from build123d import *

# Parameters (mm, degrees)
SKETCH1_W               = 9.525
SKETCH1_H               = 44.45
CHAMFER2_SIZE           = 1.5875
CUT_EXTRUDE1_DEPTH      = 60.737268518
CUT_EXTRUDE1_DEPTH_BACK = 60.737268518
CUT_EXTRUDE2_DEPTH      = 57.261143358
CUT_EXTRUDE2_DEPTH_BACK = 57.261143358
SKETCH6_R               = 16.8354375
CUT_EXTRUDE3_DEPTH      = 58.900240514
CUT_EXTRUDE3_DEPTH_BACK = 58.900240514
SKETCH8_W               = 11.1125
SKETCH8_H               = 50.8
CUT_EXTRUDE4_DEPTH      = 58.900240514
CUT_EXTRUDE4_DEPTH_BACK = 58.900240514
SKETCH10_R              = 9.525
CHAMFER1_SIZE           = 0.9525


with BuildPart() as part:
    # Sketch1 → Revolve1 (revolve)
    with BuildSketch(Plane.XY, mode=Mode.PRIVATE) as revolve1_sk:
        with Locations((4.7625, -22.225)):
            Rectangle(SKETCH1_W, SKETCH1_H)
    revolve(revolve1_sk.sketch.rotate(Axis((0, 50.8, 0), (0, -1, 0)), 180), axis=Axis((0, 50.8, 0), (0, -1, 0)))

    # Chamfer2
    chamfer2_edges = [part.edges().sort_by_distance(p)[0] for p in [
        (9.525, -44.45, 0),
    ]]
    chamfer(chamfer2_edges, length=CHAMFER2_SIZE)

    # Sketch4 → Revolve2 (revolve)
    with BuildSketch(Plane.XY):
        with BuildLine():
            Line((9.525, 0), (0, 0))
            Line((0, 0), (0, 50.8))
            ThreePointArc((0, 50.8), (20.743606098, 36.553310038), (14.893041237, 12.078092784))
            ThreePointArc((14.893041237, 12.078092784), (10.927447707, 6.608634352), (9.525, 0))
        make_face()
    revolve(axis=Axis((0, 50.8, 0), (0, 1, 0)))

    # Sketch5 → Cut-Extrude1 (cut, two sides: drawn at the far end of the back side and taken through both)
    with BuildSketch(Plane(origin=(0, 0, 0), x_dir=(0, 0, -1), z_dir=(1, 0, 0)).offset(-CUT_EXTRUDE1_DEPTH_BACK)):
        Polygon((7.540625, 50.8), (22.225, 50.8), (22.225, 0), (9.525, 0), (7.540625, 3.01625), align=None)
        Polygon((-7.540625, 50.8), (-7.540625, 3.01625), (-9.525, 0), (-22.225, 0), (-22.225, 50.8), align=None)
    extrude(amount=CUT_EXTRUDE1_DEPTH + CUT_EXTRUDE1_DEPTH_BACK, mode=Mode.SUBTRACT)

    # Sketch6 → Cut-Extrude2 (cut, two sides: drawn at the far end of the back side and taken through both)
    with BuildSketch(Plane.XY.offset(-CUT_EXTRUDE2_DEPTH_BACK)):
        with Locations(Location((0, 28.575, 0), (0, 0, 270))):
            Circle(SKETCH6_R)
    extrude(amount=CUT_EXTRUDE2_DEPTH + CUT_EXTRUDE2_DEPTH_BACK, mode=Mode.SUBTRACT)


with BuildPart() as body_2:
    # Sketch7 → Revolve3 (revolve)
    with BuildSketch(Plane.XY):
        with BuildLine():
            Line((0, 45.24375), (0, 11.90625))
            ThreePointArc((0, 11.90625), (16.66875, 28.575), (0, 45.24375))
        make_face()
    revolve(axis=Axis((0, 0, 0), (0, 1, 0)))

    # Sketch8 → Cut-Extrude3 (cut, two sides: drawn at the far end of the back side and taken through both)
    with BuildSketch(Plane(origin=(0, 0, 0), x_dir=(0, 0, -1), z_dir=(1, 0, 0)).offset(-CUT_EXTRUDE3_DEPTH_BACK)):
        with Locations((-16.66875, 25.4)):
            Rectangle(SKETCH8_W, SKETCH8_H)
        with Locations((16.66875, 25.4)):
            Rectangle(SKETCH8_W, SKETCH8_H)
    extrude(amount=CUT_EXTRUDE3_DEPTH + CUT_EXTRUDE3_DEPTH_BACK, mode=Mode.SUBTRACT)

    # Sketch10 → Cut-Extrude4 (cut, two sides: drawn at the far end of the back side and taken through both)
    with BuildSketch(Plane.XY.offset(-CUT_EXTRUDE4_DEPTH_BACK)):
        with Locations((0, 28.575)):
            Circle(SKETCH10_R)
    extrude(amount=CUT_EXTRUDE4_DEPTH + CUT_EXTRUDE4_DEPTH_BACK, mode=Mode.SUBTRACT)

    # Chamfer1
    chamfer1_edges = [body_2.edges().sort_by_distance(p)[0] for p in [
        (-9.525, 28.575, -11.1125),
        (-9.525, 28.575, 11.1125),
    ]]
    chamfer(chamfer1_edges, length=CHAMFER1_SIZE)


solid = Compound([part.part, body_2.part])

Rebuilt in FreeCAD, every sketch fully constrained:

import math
import FreeCAD as App
import Part
import Sketcher
Q = App.Units.Quantity


def edges_at(feature, points):
    """Names of the edges that pass closest to the given points."""
    edges = feature.Shape.Edges
    near = lambda p: min(range(len(edges)), key=lambda i: edges[i].distToShape(Part.Vertex(*p))[0])
    return sorted({f"Edge{near(p) + 1}" for p in points})

doc = App.newDocument("Part")
body = doc.addObject("PartDesign::Body", "Body")

# Sketch on XY plane
sketch1 = body.newObject("Sketcher::SketchObject", "Sketch")
sketch1.AttachmentSupport = (doc.getObject("XY_Plane"), [""])
sketch1.MapMode = "FlatFace"
sketch1.addGeometry([
    Part.LineSegment(App.Vector(0, 0, 0), App.Vector(0, -44, 0)),
    Part.LineSegment(App.Vector(0, -44, 0), App.Vector(10, -44, 0)),
    Part.LineSegment(App.Vector(10, -44, 0), App.Vector(10, 0, 0)),
    Part.LineSegment(App.Vector(10, 0, 0), App.Vector(0, 0, 0)),
], False)
sketch1.addConstraint([
    Sketcher.Constraint("Coincident", 0, 2, 1, 1),
    Sketcher.Constraint("Coincident", 1, 2, 2, 1),
    Sketcher.Constraint("Coincident", 2, 2, 3, 1),
    Sketcher.Constraint("Coincident", 3, 2, 0, 1),
    Sketcher.Constraint("Vertical", 0),
    Sketcher.Constraint("Horizontal", 1),
    Sketcher.Constraint("Vertical", 2),
    Sketcher.Constraint("Horizontal", 3),
    Sketcher.Constraint("Coincident", 3, 2, -1, 1),
    Sketcher.Constraint("DistanceY", 0, 2, 0, 1, Q("1.75 in")),
    Sketcher.Constraint("DistanceX", 1, 1, 1, 2, Q("0.375 in")),
])
revolution = body.newObject("PartDesign::Revolution", "Revolution")
revolution.Profile = sketch1
revolution.ReferenceAxis = (sketch1, ["V_Axis"])
revolution.Angle = 360
doc.recompute()

chamfer = body.newObject("PartDesign::Chamfer", "Chamfer")
chamfer.Base = (revolution, edges_at(revolution, [(9.525, -44.45, 0)]))
chamfer.Size = Q("0.0625 in")

# Sketch on XY plane
sketch2 = body.newObject("Sketcher::SketchObject", "Sketch001")
sketch2.AttachmentSupport = (doc.getObject("XY_Plane"), [""])
sketch2.MapMode = "FlatFace"
sketch2.addGeometry([
    Part.LineSegment(App.Vector(0, 0, 0), App.Vector(10, 0, 0)),
    Part.ArcOfCircle(Part.Circle(App.Vector(26, 0, 0), App.Vector(0, 0, 1), 16), math.radians(132), math.radians(180)),
    Part.ArcOfCircle(Part.Circle(App.Vector(0, 29, 0), App.Vector(0, 0, 1), 22), math.radians(-48), math.radians(90)),
    Part.LineSegment(App.Vector(0, 51, 0), App.Vector(0, 0, 0)),
], False)
sketch2.addConstraint([
    Sketcher.Constraint("Coincident", 0, 2, 1, 2),
    Sketcher.Constraint("Tangent", 1, 1, 2, 1),
    Sketcher.Constraint("Coincident", 2, 2, 3, 1),
    Sketcher.Constraint("Coincident", 3, 2, 0, 1),
    Sketcher.Constraint("Horizontal", 0),
    Sketcher.Constraint("Vertical", 3),
    Sketcher.Constraint("Coincident", 3, 2, -1, 1),
    Sketcher.Constraint("PointOnObject", 1, 3, -1),
    Sketcher.Constraint("PointOnObject", 2, 3, -2),
    Sketcher.Constraint("DistanceY", 3, 2, 3, 1, Q("2 in")),
    Sketcher.Constraint("Radius", 1, Q("0.640625 in")),
    Sketcher.Constraint("Radius", 2, Q("0.875 in")),
])
revolution2 = body.newObject("PartDesign::Revolution", "Revolution001")
revolution2.Profile = sketch2
revolution2.ReferenceAxis = (sketch2, ["V_Axis"])
revolution2.Angle = 360

# Sketch on YZ plane
sketch3 = body.newObject("Sketcher::SketchObject", "Sketch002")
sketch3.AttachmentSupport = (doc.getObject("YZ_Plane"), [""])
sketch3.MapMode = "FlatFace"
sketch3.addGeometry([
    Part.LineSegment(App.Vector(50.8, -22.2, 0), App.Vector(50.8, -7.5, 0)),  # 0
    Part.LineSegment(App.Vector(50.8, -7.5, 0), App.Vector(3, -7.5, 0)),  # 1
    Part.LineSegment(App.Vector(3, -7.5, 0), App.Vector(0, -9.5, 0)),  # 2
    Part.LineSegment(App.Vector(0, -9.5, 0), App.Vector(0, -22.2, 0)),  # 3
    Part.LineSegment(App.Vector(0, -22.2, 0), App.Vector(50.8, -22.2, 0)),  # 4
    Part.LineSegment(App.Vector(3, 7.5, 0), App.Vector(50.8, 7.5, 0)),  # 5
    Part.LineSegment(App.Vector(50.8, 7.5, 0), App.Vector(50.8, 22.2, 0)),  # 6
    Part.LineSegment(App.Vector(50.8, 22.2, 0), App.Vector(0, 22.2, 0)),  # 7
    Part.LineSegment(App.Vector(0, 22.2, 0), App.Vector(0, 9.5, 0)),  # 8
    Part.LineSegment(App.Vector(0, 9.5, 0), App.Vector(3, 7.5, 0)),  # 9
], False)
sketch3.addConstraint([
    Sketcher.Constraint("Coincident", 0, 2, 1, 1),
    Sketcher.Constraint("Coincident", 1, 2, 2, 1),
    Sketcher.Constraint("Coincident", 2, 2, 3, 1),
    Sketcher.Constraint("Coincident", 3, 2, 4, 1),
    Sketcher.Constraint("Coincident", 4, 2, 0, 1),
    Sketcher.Constraint("Coincident", 5, 2, 6, 1),
    Sketcher.Constraint("Coincident", 6, 2, 7, 1),
    Sketcher.Constraint("Coincident", 7, 2, 8, 1),
    Sketcher.Constraint("Coincident", 8, 2, 9, 1),
    Sketcher.Constraint("Coincident", 9, 2, 5, 1),
    Sketcher.Constraint("Vertical", 0),
    Sketcher.Constraint("Horizontal", 1),
    Sketcher.Constraint("Vertical", 3),
    Sketcher.Constraint("Horizontal", 4),
    Sketcher.Constraint("Horizontal", 5),
    Sketcher.Constraint("Vertical", 6),
    Sketcher.Constraint("Horizontal", 7),
    Sketcher.Constraint("Vertical", 8),
    Sketcher.Constraint("Symmetric", 3, 2, 7, 2, -1, 1),
    Sketcher.Constraint("Symmetric", 0, 2, 5, 2, -1),
    Sketcher.Constraint("Symmetric", 2, 2, 8, 2, -1),
    Sketcher.Constraint("Vertical", 1, 2, 9, 2),
    Sketcher.Constraint("DistanceX", 4, 1, 4, 2, Q("2 in")),
    Sketcher.Constraint("DistanceY", 3, 2, 3, 1, Q("0.5 in")),
    Sketcher.Constraint("DistanceY", 0, 1, 0, 2, Q("0.578125 in")),
    Sketcher.Constraint("DistanceY", 4, 2, 6, 2, Q("1.75 in")),
    Sketcher.Constraint("DistanceX", 1, 2, 1, 1, 47.78375),
])
pocket1 = body.newObject("PartDesign::Pocket", "Pocket")
pocket1.Profile = sketch3
pocket1.Type = "ThroughAll"
pocket1.Midplane = True

# Sketch on XY plane
sketch4 = body.newObject("Sketcher::SketchObject", "Sketch003")
sketch4.AttachmentSupport = (doc.getObject("XY_Plane"), [""])
sketch4.MapMode = "FlatFace"
sketch4.addGeometry(Part.Circle(App.Vector(0, 29, 0), App.Vector(0, 0, 1), 17), False)
sketch4.addConstraint([
    Sketcher.Constraint("PointOnObject", 0, 3, -2),
    Sketcher.Constraint("DistanceY", -1, 1, 0, 3, Q("1.125 in")),
    Sketcher.Constraint("Diameter", 0, 33.670875),
])
pocket2 = body.newObject("PartDesign::Pocket", "Pocket001")
pocket2.Profile = sketch4
pocket2.Type = "ThroughAll"
pocket2.Midplane = True
body2 = doc.addObject("PartDesign::Body", "Body001")

# Sketch on XY plane
sketch5 = body2.newObject("Sketcher::SketchObject", "Sketch004")
sketch5.AttachmentSupport = (doc.getObject("XY_Plane001"), [""])
sketch5.MapMode = "FlatFace"
sketch5.addGeometry([
    Part.LineSegment(App.Vector(0, 45, 0), App.Vector(0, 12, 0)),
    Part.ArcOfCircle(Part.Circle(App.Vector(0, 29, 0), App.Vector(0, 0, 1), 17), math.radians(-90), math.radians(90)),
], False)
sketch5.addConstraint([
    Sketcher.Constraint("Coincident", 0, 1, 1, 2),
    Sketcher.Constraint("Coincident", 1, 1, 0, 2),
    Sketcher.Constraint("Vertical", 0),
    Sketcher.Constraint("PointOnObject", 1, 3, -2),
    Sketcher.Constraint("PointOnObject", 0, 1, -2),
    Sketcher.Constraint("Radius", 1, Q("0.65625 in")),
    Sketcher.Constraint("DistanceY", -1, 1, 1, 3, Q("1.125 in")),
])
revolution3 = body2.newObject("PartDesign::Revolution", "Revolution002")
revolution3.Profile = sketch5
revolution3.ReferenceAxis = (sketch5, ["V_Axis"])
revolution3.Angle = 360

# Sketch on YZ plane
sketch6 = body2.newObject("Sketcher::SketchObject", "Sketch005")
sketch6.AttachmentSupport = (doc.getObject("YZ_Plane001"), [""])
sketch6.MapMode = "FlatFace"
sketch6.addGeometry([
    Part.LineSegment(App.Vector(51, 22, 0), App.Vector(0, 22, 0)),  # 0
    Part.LineSegment(App.Vector(0, 22, 0), App.Vector(0, 11, 0)),  # 1
    Part.LineSegment(App.Vector(0, 11, 0), App.Vector(51, 11, 0)),  # 2
    Part.LineSegment(App.Vector(51, 11, 0), App.Vector(51, 22, 0)),  # 3
    Part.LineSegment(App.Vector(51, -11, 0), App.Vector(0, -11, 0)),  # 4
    Part.LineSegment(App.Vector(0, -11, 0), App.Vector(0, -22, 0)),  # 5
    Part.LineSegment(App.Vector(0, -22, 0), App.Vector(51, -22, 0)),  # 6
    Part.LineSegment(App.Vector(51, -22, 0), App.Vector(51, -11, 0)),  # 7
], False)
sketch6.addConstraint([
    Sketcher.Constraint("Coincident", 0, 2, 1, 1),
    Sketcher.Constraint("Coincident", 1, 2, 2, 1),
    Sketcher.Constraint("Coincident", 2, 2, 3, 1),
    Sketcher.Constraint("Coincident", 3, 2, 0, 1),
    Sketcher.Constraint("Coincident", 4, 2, 5, 1),
    Sketcher.Constraint("Coincident", 5, 2, 6, 1),
    Sketcher.Constraint("Coincident", 6, 2, 7, 1),
    Sketcher.Constraint("Coincident", 7, 2, 4, 1),
    Sketcher.Constraint("Horizontal", 0),
    Sketcher.Constraint("Vertical", 1),
    Sketcher.Constraint("Horizontal", 2),
    Sketcher.Constraint("Vertical", 3),
    Sketcher.Constraint("Horizontal", 4),
    Sketcher.Constraint("Vertical", 5),
    Sketcher.Constraint("Horizontal", 6),
    Sketcher.Constraint("Vertical", 7),
    Sketcher.Constraint("Symmetric", 1, 2, 4, 2, -1, 1),
    Sketcher.Constraint("Symmetric", 0, 2, 5, 2, -1),
    Sketcher.Constraint("Vertical", 3, 2, 6, 2),
    Sketcher.Constraint("DistanceX", 0, 2, 0, 1, Q("2 in")),
    Sketcher.Constraint("DistanceY", 1, 2, 1, 1, Q("0.4375 in")),
    Sketcher.Constraint("DistanceY", 5, 2, 0, 2, Q("1.75 in")),
])
pocket3 = body2.newObject("PartDesign::Pocket", "Pocket002")
pocket3.Profile = sketch6
pocket3.Type = "ThroughAll"
pocket3.Midplane = True

# Sketch on XY plane
sketch7 = body2.newObject("Sketcher::SketchObject", "Sketch006")
sketch7.AttachmentSupport = (doc.getObject("XY_Plane001"), [""])
sketch7.MapMode = "FlatFace"
sketch7.addGeometry(Part.Circle(App.Vector(0, 29, 0), App.Vector(0, 0, 1), 10), False)
sketch7.addConstraint([
    Sketcher.Constraint("PointOnObject", 0, 3, -2),
    Sketcher.Constraint("Diameter", 0, Q("0.75 in")),
    Sketcher.Constraint("DistanceY", -1, 1, 0, 3, Q("1.125 in")),
])
pocket4 = body2.newObject("PartDesign::Pocket", "Pocket003")
pocket4.Profile = sketch7
pocket4.Type = "ThroughAll"
pocket4.Midplane = True
doc.recompute()

chamfer2 = body2.newObject("PartDesign::Chamfer", "Chamfer001")
chamfer2.Base = (pocket4, edges_at(pocket4, [(-9.525, 28.575, -11.113), (-9.525, 28.575, 11.113)]))
chamfer2.Size = Q("0.0375 in")

doc.recompute()
